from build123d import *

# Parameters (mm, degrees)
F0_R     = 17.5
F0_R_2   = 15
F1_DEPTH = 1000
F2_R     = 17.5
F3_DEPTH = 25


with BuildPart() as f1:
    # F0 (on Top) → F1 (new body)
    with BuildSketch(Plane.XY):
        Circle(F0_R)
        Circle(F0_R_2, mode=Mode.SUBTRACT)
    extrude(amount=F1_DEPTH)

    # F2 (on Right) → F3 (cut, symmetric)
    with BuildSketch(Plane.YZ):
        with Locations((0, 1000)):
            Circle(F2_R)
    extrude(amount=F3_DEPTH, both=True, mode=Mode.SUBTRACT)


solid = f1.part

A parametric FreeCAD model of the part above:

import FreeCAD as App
import Part
import Sketcher
from FreeCAD import Vector
Q = App.Units.Quantity

doc = App.newDocument("Part")
body = doc.addObject("PartDesign::Body", "Body")

# Sketch on XY plane
sketch1 = body.newObject("Sketcher::SketchObject", "Sketch")
sketch1.AttachmentSupport = (doc.getObject("XY_Plane"), [""])
sketch1.MapMode = "FlatFace"
sketch1.addGeometry([
    Part.Circle(Vector(0, 0, 0), Vector(0, 0, 1), 18),
    Part.Circle(Vector(0, 0, 0), Vector(0, 0, 1), 15),
], False)
sketch1.addConstraint([
    Sketcher.Constraint("Coincident", 0, 3, -1, 1),
    Sketcher.Constraint("Coincident", 1, 3, -1, 1),
    Sketcher.Constraint("Diameter", 0, Q("35 mm")),
    Sketcher.Constraint("Diameter", 1, Q("30 mm")),
])
pad1 = body.newObject("PartDesign::Pad", "Pad")
pad1.Profile = sketch1
pad1.Length = 1000

# Sketch on YZ plane
sketch2 = body.newObject("Sketcher::SketchObject", "Sketch001")
sketch2.AttachmentSupport = (doc.getObject("YZ_Plane"), [""])
sketch2.MapMode = "FlatFace"
sketch2.addGeometry(Part.Circle(Vector(0, 1000, 0), Vector(0, 0, 1), 18), False)
sketch2.addConstraint([
    Sketcher.Constraint("PointOnObject", 0, 3, -2),
    Sketcher.Constraint("Diameter", 0, Q("35 mm")),
    Sketcher.Constraint("DistanceY", -1, 1, 0, 3, Q("1000 mm")),
])
pocket1 = body.newObject("PartDesign::Pocket", "Pocket")
pocket1.Profile = sketch2
pocket1.Length = 50
pocket1.Midplane = True

doc.recompute()
